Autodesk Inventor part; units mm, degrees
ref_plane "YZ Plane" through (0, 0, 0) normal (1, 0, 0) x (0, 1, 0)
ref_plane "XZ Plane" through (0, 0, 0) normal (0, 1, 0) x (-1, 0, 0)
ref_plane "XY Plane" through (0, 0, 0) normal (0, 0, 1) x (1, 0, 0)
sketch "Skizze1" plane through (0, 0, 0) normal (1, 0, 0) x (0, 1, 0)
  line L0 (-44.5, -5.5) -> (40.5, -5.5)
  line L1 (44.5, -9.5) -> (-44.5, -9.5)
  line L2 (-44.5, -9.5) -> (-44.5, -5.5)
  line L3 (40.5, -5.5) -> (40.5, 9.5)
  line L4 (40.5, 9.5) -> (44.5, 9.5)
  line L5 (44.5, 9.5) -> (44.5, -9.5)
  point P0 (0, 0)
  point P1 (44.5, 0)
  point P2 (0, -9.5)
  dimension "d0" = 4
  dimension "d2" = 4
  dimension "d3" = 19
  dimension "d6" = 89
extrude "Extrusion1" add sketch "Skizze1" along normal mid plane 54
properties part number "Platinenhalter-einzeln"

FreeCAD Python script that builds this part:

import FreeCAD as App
import Part
import Sketcher

V = App.Vector


def add_polygon(sketch, points):
    """Adds a closed chain of lines whose ends are joined by coincident constraints."""
    first, n = sketch.GeometryCount, len(points)
    for a, b in zip(points, points[1:] + points[:1]):
        sketch.addGeometry(Part.LineSegment(App.Vector(*a, 0), App.Vector(*b, 0)), False)
    for i in range(n):
        sketch.addConstraint(Sketcher.Constraint("Coincident", first + i, 2, first + (i + 1) % n, 1))

doc = App.newDocument("Part")
body = doc.addObject("PartDesign::Body", "Body")

# Sketch on YZ plane
sketch1 = doc.addObject("Sketcher::SketchObject", "Sketch")
body.addObject(sketch1)
sketch1.AttachmentSupport = (doc.YZ_Plane, [""])
sketch1.MapMode = "FlatFace"
add_polygon(sketch1, [(40.5, -5.5), (-44.5, -5.5), (-44.5, -9.5), (44.5, -9.5), (44.5, 9.5), (40.5, 9.5)])  # lines 0-5
sketch1.addConstraint([
    Sketcher.Constraint("Horizontal", 0),
    Sketcher.Constraint("Vertical", 1),
    Sketcher.Constraint("Horizontal", 2),
    Sketcher.Constraint("Vertical", 3),
    Sketcher.Constraint("Horizontal", 4),
    Sketcher.Constraint("Vertical", 5),
    Sketcher.Constraint("Symmetric", 1, 2, 3, 2, -1, 1),
    Sketcher.Constraint("Equal", 4, 1),
    Sketcher.Constraint("DistanceX", 2, 1, 2, 2, 89.0),
    Sketcher.Constraint("DistanceX", 4, 2, 4, 1, 4.0),
    Sketcher.Constraint("DistanceY", 3, 1, 3, 2, 19.0),
])
pad1 = doc.addObject("PartDesign::Pad", "Pad")
body.addObject(pad1)
pad1.Profile = sketch1
pad1.Length = 54
pad1.Midplane = True

doc.recompute()
